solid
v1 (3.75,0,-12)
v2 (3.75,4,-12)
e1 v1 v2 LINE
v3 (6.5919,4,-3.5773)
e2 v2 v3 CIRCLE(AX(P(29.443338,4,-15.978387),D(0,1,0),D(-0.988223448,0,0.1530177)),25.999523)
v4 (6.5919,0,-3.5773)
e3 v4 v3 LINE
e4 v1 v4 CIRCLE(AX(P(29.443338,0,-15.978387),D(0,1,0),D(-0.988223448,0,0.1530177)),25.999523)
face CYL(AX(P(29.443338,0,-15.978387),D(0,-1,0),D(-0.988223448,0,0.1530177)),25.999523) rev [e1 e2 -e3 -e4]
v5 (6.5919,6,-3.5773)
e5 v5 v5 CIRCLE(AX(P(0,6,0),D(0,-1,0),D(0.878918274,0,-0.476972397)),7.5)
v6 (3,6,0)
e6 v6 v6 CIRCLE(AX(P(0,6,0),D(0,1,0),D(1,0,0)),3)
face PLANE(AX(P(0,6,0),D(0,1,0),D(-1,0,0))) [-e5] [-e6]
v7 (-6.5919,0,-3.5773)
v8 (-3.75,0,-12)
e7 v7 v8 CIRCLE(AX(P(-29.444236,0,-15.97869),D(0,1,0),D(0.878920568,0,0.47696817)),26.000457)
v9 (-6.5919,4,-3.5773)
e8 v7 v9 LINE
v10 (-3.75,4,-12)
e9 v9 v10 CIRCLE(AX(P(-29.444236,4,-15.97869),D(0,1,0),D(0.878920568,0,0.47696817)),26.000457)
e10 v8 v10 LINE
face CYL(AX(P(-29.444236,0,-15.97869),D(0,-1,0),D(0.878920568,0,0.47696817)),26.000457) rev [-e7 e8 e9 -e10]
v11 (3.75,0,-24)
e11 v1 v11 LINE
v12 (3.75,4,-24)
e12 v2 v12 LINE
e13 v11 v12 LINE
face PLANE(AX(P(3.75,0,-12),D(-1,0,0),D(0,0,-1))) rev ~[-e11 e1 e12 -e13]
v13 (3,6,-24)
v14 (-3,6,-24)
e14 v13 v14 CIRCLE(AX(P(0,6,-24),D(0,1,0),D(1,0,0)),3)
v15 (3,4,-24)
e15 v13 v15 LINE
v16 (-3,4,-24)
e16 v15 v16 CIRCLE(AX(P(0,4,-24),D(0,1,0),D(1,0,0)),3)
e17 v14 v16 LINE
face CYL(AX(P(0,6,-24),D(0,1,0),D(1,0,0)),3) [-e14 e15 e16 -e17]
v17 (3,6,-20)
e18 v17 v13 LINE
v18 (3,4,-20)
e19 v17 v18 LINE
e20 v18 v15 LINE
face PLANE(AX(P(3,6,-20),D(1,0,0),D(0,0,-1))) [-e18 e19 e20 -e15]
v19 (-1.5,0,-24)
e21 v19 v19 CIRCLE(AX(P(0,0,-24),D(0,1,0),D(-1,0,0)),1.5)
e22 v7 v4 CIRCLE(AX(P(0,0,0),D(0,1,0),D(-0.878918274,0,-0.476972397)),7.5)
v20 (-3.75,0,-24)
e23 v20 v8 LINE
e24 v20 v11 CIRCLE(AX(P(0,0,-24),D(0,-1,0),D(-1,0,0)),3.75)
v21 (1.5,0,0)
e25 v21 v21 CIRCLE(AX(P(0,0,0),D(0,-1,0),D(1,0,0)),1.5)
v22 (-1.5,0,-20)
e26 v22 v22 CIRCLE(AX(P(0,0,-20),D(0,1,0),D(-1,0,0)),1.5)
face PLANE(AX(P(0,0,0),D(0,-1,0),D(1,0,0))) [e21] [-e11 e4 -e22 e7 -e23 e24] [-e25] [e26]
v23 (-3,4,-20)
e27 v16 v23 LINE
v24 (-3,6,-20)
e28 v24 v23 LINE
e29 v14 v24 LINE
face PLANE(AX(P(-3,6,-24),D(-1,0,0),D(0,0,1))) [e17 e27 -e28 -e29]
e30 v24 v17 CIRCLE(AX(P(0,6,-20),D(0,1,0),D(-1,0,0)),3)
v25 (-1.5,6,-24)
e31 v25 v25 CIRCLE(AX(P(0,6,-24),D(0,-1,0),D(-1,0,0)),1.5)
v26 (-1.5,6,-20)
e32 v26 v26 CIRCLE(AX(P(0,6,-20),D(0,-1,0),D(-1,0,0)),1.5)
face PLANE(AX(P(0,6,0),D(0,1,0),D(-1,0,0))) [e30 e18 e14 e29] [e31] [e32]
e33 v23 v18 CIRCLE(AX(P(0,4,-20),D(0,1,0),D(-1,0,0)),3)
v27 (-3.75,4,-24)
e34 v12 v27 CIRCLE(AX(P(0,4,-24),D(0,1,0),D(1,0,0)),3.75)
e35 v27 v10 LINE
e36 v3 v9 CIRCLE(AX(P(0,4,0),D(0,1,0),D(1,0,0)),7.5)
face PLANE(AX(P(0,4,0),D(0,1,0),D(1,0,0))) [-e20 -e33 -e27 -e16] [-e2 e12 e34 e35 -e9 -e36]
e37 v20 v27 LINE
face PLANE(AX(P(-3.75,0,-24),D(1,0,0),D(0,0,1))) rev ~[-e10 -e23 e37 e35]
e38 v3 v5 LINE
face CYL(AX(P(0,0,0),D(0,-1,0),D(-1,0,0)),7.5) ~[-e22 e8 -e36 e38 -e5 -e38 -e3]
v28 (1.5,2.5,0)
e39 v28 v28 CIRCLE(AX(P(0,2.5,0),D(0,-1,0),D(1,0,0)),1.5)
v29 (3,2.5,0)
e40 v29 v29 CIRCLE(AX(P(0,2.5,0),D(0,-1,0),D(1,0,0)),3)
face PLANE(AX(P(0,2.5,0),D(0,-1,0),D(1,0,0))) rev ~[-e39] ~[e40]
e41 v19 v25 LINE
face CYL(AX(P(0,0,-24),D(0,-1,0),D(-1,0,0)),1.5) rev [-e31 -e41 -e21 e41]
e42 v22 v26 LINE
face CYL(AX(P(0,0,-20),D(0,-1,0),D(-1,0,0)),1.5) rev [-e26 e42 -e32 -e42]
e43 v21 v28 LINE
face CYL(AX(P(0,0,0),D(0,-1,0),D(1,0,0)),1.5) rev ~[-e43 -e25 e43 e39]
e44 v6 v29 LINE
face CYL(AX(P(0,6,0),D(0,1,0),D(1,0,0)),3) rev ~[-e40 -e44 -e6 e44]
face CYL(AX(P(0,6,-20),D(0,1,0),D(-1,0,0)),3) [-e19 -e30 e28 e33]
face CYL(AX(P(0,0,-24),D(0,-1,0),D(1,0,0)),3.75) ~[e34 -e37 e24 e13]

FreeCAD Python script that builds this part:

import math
import FreeCAD as App
import Part
import Sketcher
from FreeCAD import Vector
Q = App.Units.Quantity

doc = App.newDocument("Part")
body = doc.addObject("PartDesign::Body", "Body")

# Sketch on XZ plane
sketch1 = body.newObject("Sketcher::SketchObject", "Sketch")
sketch1.AttachmentSupport = (doc.getObject("XZ_Plane"), [""])
sketch1.MapMode = "FlatFace"
sketch1.addGeometry(Part.ArcOfCircle(Part.Circle(Vector(29.4, -16, 0), Vector(0, 0, 1), 26), math.radians(151.51), math.radians(171.2)), False)
sketch1.addGeometry(Part.LineSegment(Vector(3.8, -12, 0), Vector(3.8, -24, 0)), False)
sketch1.addGeometry(Part.ArcOfCircle(Part.Circle(Vector(0, -24, 0), Vector(0, 0, 1), 3.8), math.radians(180), math.radians(360)), False)
sketch1.addGeometry(Part.LineSegment(Vector(-3.8, -24, 0), Vector(-3.8, -12, 0)), False)
sketch1.addGeometry(Part.ArcOfCircle(Part.Circle(Vector(-29.4, -16, 0), Vector(0, 0, 1), 26), math.radians(8.8), math.radians(28.49)), False)
sketch1.addGeometry(Part.ArcOfCircle(Part.Circle(Vector(0, 0, 0), Vector(0, 0, 1), 7.5), math.radians(-28), math.radians(208)), False)
sketch1.addGeometry(Part.Circle(Vector(0, -24, 0), Vector(0, 0, 1), 1.5), False)
sketch1.addGeometry(Part.Circle(Vector(0, -20, 0), Vector(0, 0, 1), 1.5), False)
sketch1.addConstraint(Sketcher.Constraint("Coincident", 0, 2, 1, 1))
sketch1.addConstraint(Sketcher.Constraint("Tangent", 1, 2, 2, 2))
sketch1.addConstraint(Sketcher.Constraint("Tangent", 2, 1, 3, 1))
sketch1.addConstraint(Sketcher.Constraint("Coincident", 3, 2, 4, 1))
sketch1.addConstraint(Sketcher.Constraint("Tangent", 4, 2, 5, 2))
sketch1.addConstraint(Sketcher.Constraint("Tangent", 5, 1, 0, 1))
sketch1.addConstraint(Sketcher.Constraint("Vertical", 1))
sketch1.addConstraint(Sketcher.Constraint("Vertical", 3))
sketch1.addConstraint(Sketcher.Constraint("Coincident", 5, 3, -1, 1))
sketch1.addConstraint(Sketcher.Constraint("Coincident", 6, 3, 2, 3))
sketch1.addConstraint(Sketcher.Constraint("Equal", 0, 4))
sketch1.addConstraint(Sketcher.Constraint("Equal", 6, 7))
sketch1.addConstraint(Sketcher.Constraint("Symmetric", 0, 2, 3, 2, -2))
sketch1.addConstraint(Sketcher.Constraint("PointOnObject", 7, 3, -2))
sketch1.addConstraint(Sketcher.Constraint("Diameter", 6, Q("3 mm")))
sketch1.addConstraint(Sketcher.Constraint("Radius", 0, Q("26 mm")))
sketch1.addConstraint(Sketcher.Constraint("Radius", 5, Q("7.5 mm")))
sketch1.addConstraint(Sketcher.Constraint("Radius", 2, Q("3.75 mm")))
sketch1.addConstraint(Sketcher.Constraint("DistanceY", 2, 3, -1, 1, Q("24 mm")))
sketch1.addConstraint(Sketcher.Constraint("DistanceY", 7, 3, -1, 1, Q("20 mm")))
sketch1.addConstraint(Sketcher.Constraint("DistanceY", 1, 2, 1, 1, Q("12 mm")))
pad1 = body.newObject("PartDesign::Pad", "Pad")
pad1.Profile = sketch1
pad1.Length = 6
pad1.Reversed = True

# Sketch on XZ plane
sketch2 = body.newObject("Sketcher::SketchObject", "Sketch001")
sketch2.AttachmentSupport = (doc.getObject("XZ_Plane"), [""])
sketch2.MapMode = "FlatFace"
sketch2.AttachmentOffset = App.Placement(Vector(0, 0, -6), App.Rotation())
sketch2.addGeometry(Part.ArcOfCircle(Part.Circle(Vector(0, 0, 0), Vector(0, 0, 1), 7.5), math.radians(-152), math.radians(-28)), False)
sketch2.addGeometry(Part.ArcOfCircle(Part.Circle(Vector(29.4, -16, 0), Vector(0, 0, 1), 26), math.radians(151.51), math.radians(171.2)), False)
sketch2.addGeometry(Part.LineSegment(Vector(3.8, -12, 0), Vector(3.8, -24, 0)), False)
sketch2.addGeometry(Part.ArcOfCircle(Part.Circle(Vector(0, -24, 0), Vector(0, 0, 1), 3.8), math.radians(180), math.radians(360)), False)
sketch2.addGeometry(Part.LineSegment(Vector(-3.8, -24, 0), Vector(-3.8, -12, 0)), False)
sketch2.addGeometry(Part.ArcOfCircle(Part.Circle(Vector(-29.4, -16, 0), Vector(0, 0, 1), 26), math.radians(8.8), math.radians(28.49)), False)
sketch2.addGeometry(Part.LineSegment(Vector(3, -24, 0), Vector(3, -20, 0)), False)
sketch2.addGeometry(Part.ArcOfCircle(Part.Circle(Vector(0, -20, 0), Vector(0, 0, 1), 3), math.radians(0), math.radians(180)), False)
sketch2.addGeometry(Part.LineSegment(Vector(-3, -20, 0), Vector(-3, -24, 0)), False)
sketch2.addGeometry(Part.ArcOfCircle(Part.Circle(Vector(0, -24, 0), Vector(0, 0, 1), 3), math.radians(180), math.radians(360)), False)
sketch2.addConstraint(Sketcher.Constraint("Tangent", 0, 2, 1, 1))
sketch2.addConstraint(Sketcher.Constraint("Coincident", 1, 2, 2, 1))
sketch2.addConstraint(Sketcher.Constraint("Tangent", 2, 2, 3, 2))
sketch2.addConstraint(Sketcher.Constraint("Tangent", 3, 1, 4, 1))
sketch2.addConstraint(Sketcher.Constraint("Coincident", 4, 2, 5, 1))
sketch2.addConstraint(Sketcher.Constraint("Tangent", 5, 2, 0, 1))
sketch2.addConstraint(Sketcher.Constraint("Tangent", 6, 2, 7, 1))
sketch2.addConstraint(Sketcher.Constraint("Tangent", 7, 2, 8, 1))
sketch2.addConstraint(Sketcher.Constraint("Tangent", 8, 2, 9, 1))
sketch2.addConstraint(Sketcher.Constraint("Tangent", 9, 2, 6, 1))
sketch2.addConstraint(Sketcher.Constraint("Vertical", 2))
sketch2.addConstraint(Sketcher.Constraint("Vertical", 4))
sketch2.addConstraint(Sketcher.Constraint("Vertical", 6))
sketch2.addConstraint(Sketcher.Constraint("Vertical", 8))
sketch2.addConstraint(Sketcher.Constraint("Coincident", 0, 3, -1, 1))
sketch2.addConstraint(Sketcher.Constraint("Coincident", 9, 3, 3, 3))
sketch2.addConstraint(Sketcher.Constraint("Equal", 1, 5))
sketch2.addConstraint(Sketcher.Constraint("Symmetric", 1, 2, 4, 2, -2))
sketch2.addConstraint(Sketcher.Constraint("Radius", 7, Q("3 mm")))
sketch2.addConstraint(Sketcher.Constraint("Radius", 1, Q("26 mm")))
sketch2.addConstraint(Sketcher.Constraint("Radius", 0, Q("7.5 mm")))
sketch2.addConstraint(Sketcher.Constraint("DistanceY", 2, 2, 2, 1, Q("12 mm")))
sketch2.addConstraint(Sketcher.Constraint("DistanceY", 6, 1, 6, 2, Q("4 mm")))
sketch2.addConstraint(Sketcher.Constraint("Radius", 3, Q("3.75 mm")))
sketch2.addConstraint(Sketcher.Constraint("DistanceY", 3, 3, -1, 1, Q("24 mm")))
pocket1 = body.newObject("PartDesign::Pocket", "Pocket")
pocket1.Profile = sketch2
pocket1.Length = 2
pocket1.Reversed = True

# Sketch on XZ plane
sketch3 = body.newObject("Sketcher::SketchObject", "Sketch002")
sketch3.AttachmentSupport = (doc.getObject("XZ_Plane"), [""])
sketch3.MapMode = "FlatFace"
sketch3.AttachmentOffset = App.Placement(Vector(0, 0, -6), App.Rotation())
sketch3.addGeometry(Part.Circle(Vector(0, 0, 0), Vector(0, 0, 1), 3), False)
sketch3.addConstraint(Sketcher.Constraint("Coincident", 0, 3, -1, 1))
sketch3.addConstraint(Sketcher.Constraint("Diameter", 0, Q("6 mm")))
pocket2 = body.newObject("PartDesign::Pocket", "Pocket001")
pocket2.Profile = sketch3
pocket2.Type = "ThroughAll"
pocket2.Reversed = True

# Sketch on XZ plane
sketch4 = body.newObject("Sketcher::SketchObject", "Sketch003")
sketch4.AttachmentSupport = (doc.getObject("XZ_Plane"), [""])
sketch4.MapMode = "FlatFace"
sketch4.addGeometry(Part.Circle(Vector(0, 0, 0), Vector(0, 0, 1), 3), False)
sketch4.addGeometry(Part.Circle(Vector(0, 0, 0), Vector(0, 0, 1), 1.5), False)
sketch4.addConstraint(Sketcher.Constraint("Coincident", 0, 3, -1, 1))
sketch4.addConstraint(Sketcher.Constraint("Coincident", 1, 3, -1, 1))
sketch4.addConstraint(Sketcher.Constraint("Diameter", 0, Q("6 mm")))
sketch4.addConstraint(Sketcher.Constraint("Diameter", 1, Q("3 mm")))
pad2 = body.newObject("PartDesign::Pad", "Pad001")
pad2.Profile = sketch4
pad2.Length = 2.5
pad2.Reversed = True

doc.recompute()
